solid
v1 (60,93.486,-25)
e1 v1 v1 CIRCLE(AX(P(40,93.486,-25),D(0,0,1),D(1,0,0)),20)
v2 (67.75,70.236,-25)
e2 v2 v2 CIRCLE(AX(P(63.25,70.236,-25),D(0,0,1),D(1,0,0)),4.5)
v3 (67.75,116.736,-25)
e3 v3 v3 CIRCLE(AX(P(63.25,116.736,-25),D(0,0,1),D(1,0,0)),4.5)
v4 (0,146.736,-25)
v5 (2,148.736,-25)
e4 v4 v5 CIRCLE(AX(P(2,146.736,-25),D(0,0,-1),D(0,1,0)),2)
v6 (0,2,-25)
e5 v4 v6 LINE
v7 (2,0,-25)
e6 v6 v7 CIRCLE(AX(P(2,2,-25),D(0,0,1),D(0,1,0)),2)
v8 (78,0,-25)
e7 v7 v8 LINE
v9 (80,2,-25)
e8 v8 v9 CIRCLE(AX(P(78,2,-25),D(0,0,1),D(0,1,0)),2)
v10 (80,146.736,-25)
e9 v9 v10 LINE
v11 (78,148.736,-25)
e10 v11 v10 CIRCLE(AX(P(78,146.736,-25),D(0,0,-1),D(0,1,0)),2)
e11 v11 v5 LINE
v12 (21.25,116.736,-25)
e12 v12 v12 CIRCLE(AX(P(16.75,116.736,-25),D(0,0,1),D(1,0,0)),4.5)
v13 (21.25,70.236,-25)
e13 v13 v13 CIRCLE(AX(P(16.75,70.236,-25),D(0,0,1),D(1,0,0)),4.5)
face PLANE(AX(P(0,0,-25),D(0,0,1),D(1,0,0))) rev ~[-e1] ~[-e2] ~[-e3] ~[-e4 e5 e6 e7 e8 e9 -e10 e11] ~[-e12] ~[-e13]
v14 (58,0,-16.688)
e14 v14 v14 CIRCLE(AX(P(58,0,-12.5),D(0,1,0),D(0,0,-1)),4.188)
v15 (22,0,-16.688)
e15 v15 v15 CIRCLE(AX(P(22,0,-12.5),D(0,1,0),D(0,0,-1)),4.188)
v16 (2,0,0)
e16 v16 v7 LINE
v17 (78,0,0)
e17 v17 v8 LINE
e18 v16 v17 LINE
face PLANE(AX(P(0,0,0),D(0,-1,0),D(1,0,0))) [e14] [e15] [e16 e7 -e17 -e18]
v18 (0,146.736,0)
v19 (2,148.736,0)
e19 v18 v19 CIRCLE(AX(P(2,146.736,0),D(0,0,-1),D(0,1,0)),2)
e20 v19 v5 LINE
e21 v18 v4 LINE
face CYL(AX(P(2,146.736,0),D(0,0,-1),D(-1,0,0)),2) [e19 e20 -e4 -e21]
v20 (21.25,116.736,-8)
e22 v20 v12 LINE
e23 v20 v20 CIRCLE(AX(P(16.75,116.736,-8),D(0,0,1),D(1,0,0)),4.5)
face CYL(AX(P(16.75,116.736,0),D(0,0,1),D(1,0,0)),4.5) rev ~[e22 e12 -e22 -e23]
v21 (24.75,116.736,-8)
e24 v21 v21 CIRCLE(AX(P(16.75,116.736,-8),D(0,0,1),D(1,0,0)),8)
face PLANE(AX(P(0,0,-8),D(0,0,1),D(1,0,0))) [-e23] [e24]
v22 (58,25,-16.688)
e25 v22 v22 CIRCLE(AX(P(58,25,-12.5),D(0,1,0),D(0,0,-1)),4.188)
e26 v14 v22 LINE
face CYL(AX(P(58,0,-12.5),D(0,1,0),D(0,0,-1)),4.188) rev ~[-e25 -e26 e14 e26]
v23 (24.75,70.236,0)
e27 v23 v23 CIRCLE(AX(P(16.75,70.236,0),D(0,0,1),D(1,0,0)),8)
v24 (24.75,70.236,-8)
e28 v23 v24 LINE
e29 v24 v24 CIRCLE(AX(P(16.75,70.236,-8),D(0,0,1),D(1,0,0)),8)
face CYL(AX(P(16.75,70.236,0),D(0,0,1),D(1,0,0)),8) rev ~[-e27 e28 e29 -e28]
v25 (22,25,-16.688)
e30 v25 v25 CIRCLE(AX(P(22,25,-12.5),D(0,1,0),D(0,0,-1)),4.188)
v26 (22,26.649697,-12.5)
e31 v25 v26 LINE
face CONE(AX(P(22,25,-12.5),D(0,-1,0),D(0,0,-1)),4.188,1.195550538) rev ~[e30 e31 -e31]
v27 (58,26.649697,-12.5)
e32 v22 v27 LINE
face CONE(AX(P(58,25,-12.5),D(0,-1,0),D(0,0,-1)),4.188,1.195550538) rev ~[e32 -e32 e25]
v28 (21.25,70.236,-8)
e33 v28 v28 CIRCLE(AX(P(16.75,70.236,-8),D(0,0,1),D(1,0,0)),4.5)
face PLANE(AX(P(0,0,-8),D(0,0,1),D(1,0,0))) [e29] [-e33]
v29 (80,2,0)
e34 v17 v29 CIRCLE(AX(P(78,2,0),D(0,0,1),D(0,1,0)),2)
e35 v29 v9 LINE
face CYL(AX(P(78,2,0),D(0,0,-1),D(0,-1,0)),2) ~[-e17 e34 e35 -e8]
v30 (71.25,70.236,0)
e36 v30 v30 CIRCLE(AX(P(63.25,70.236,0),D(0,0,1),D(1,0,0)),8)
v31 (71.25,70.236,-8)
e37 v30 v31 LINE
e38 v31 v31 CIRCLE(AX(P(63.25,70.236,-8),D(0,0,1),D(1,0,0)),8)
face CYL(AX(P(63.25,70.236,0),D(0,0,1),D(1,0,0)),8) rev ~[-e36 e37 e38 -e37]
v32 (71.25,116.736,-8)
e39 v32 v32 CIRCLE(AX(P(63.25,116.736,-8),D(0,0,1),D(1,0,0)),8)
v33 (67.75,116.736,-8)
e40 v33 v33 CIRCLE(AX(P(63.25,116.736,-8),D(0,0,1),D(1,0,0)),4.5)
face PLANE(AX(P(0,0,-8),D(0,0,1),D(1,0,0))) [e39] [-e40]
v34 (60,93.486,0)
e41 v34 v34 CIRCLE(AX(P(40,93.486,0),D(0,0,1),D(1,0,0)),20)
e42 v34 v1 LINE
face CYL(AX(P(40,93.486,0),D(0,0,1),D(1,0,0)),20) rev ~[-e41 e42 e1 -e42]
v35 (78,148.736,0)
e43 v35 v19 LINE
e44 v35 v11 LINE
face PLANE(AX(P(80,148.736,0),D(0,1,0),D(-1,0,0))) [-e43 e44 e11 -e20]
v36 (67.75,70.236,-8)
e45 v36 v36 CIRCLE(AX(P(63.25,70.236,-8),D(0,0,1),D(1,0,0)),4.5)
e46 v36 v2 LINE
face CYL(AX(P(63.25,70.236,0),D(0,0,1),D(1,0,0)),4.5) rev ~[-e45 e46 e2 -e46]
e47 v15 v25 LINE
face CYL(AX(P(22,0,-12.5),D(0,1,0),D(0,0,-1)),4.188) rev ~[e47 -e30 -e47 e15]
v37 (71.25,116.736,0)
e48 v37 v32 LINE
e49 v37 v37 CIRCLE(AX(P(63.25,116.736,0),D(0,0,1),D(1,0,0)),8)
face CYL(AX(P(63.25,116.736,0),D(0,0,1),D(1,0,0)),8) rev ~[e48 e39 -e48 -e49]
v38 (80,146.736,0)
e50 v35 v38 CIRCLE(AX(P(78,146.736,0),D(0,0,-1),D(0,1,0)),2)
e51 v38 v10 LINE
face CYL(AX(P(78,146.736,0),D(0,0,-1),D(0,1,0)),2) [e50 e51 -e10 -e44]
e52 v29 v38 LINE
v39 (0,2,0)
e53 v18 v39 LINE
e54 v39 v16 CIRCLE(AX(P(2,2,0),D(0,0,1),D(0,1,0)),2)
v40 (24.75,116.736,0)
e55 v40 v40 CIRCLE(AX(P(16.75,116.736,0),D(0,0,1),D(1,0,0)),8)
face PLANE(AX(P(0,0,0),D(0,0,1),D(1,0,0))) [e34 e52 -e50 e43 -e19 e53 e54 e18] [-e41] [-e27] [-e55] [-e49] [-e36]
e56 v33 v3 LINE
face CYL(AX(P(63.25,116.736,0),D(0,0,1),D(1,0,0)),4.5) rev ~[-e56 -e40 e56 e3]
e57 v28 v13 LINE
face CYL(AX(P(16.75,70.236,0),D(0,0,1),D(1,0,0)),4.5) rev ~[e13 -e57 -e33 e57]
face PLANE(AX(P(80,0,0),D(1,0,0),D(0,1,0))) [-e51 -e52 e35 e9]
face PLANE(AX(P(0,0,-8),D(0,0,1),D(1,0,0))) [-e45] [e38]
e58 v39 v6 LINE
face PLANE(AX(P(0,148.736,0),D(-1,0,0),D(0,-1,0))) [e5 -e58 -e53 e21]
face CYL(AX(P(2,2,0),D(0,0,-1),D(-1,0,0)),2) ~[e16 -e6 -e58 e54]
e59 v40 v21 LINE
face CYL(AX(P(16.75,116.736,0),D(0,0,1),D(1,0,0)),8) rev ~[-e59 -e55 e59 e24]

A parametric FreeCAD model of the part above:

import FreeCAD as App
import Part
import Sketcher
from FreeCAD import Vector


def edges_at(feature, points):
    """Names of the edges that pass closest to the given points."""
    edges = feature.Shape.Edges
    near = lambda p: min(range(len(edges)), key=lambda i: edges[i].distToShape(Part.Vertex(*p))[0])
    return sorted({f"Edge{near(p) + 1}" for p in points})


def add_polygon(sketch, points):
    """Adds a closed chain of lines whose ends are joined by coincident constraints."""
    first, n = sketch.GeometryCount, len(points)
    for a, b in zip(points, points[1:] + points[:1]):
        sketch.addGeometry(Part.LineSegment(App.Vector(*a, 0), App.Vector(*b, 0)), False)
    for i in range(n):
        sketch.addConstraint(Sketcher.Constraint("Coincident", first + i, 2, first + (i + 1) % n, 1))

doc = App.newDocument("Part")
body = doc.addObject("PartDesign::Body", "Body")

# Sketch on XY plane
sketch1 = body.newObject("Sketcher::SketchObject", "Sketch")
sketch1.AttachmentSupport = (doc.getObject("XY_Plane"), [""])
sketch1.MapMode = "FlatFace"
add_polygon(sketch1, [(0, 148.7), (0, 0), (80, 0), (80, 148.7)])  # lines 0-3
sketch1.addGeometry(Part.Circle(Vector(16.8, 70.2, 0), Vector(0, 0, 1), 4.5), False)  # 4
sketch1.addGeometry(Part.Circle(Vector(63.2, 70.2, 0), Vector(0, 0, 1), 4.5), False)  # 5
sketch1.addGeometry(Part.Circle(Vector(16.8, 116.7, 0), Vector(0, 0, 1), 4.5), False)  # 6
sketch1.addGeometry(Part.Circle(Vector(40, 93.5, 0), Vector(0, 0, 1), 20), False)  # 7
sketch1.addGeometry(Part.Circle(Vector(63.2, 116.7, 0), Vector(0, 0, 1), 4.5), False)  # 8
sketch1.addConstraint(Sketcher.Constraint("Vertical", 0))
sketch1.addConstraint(Sketcher.Constraint("Horizontal", 1))
sketch1.addConstraint(Sketcher.Constraint("Vertical", 2))
sketch1.addConstraint(Sketcher.Constraint("Horizontal", 3))
sketch1.addConstraint(Sketcher.Constraint("Coincident", 0, 2, -1, 1))
sketch1.addConstraint(Sketcher.Constraint("Equal", 4, 5))
sketch1.addConstraint(Sketcher.Constraint("Equal", 5, 6))
sketch1.addConstraint(Sketcher.Constraint("Equal", 6, 8))
sketch1.addConstraint(Sketcher.Constraint("Horizontal", 4, 3, 5, 3))
sketch1.addConstraint(Sketcher.Constraint("Horizontal", 6, 3, 8, 3))
sketch1.addConstraint(Sketcher.Constraint("Vertical", 4, 3, 6, 3))
sketch1.addConstraint(Sketcher.Constraint("Vertical", 5, 3, 8, 3))
sketch1.addConstraint(Sketcher.Constraint("Diameter", 4, 9.0))
sketch1.addConstraint(Sketcher.Constraint("Diameter", 7, 40.0))
sketch1.addConstraint(Sketcher.Constraint("DistanceX", 1, 1, 1, 2, 80.0))
sketch1.addConstraint(Sketcher.Constraint("DistanceX", -1, 1, 7, 3, 40.0))
sketch1.addConstraint(Sketcher.Constraint("DistanceY", 8, 3, 2, 2, 32.0))
sketch1.addConstraint(Sketcher.Constraint("DistanceX", 4, 3, 7, 3, 23.25))
sketch1.addConstraint(Sketcher.Constraint("DistanceY", 4, 3, 7, 3, 23.25))
sketch1.addConstraint(Sketcher.Constraint("DistanceX", 7, 3, 5, 3, 23.25))
sketch1.addConstraint(Sketcher.Constraint("DistanceY", 7, 3, 6, 3, 23.25))
sketch1.addConstraint(Sketcher.Constraint("DistanceY", -1, 1, 7, 3, 93.486))
pad1 = body.newObject("PartDesign::Pad", "Pad")
pad1.Profile = sketch1
pad1.Length = 25
pad1.Reversed = True

# Sketch on XY plane
sketch2 = body.newObject("Sketcher::SketchObject", "Sketch001")
sketch2.AttachmentSupport = (doc.getObject("XY_Plane"), [""])
sketch2.MapMode = "FlatFace"
sketch2.addGeometry(Part.Circle(Vector(17, 117, 0), Vector(0, 0, 1), 8), False)
sketch2.addGeometry(Part.Circle(Vector(63, 117, 0), Vector(0, 0, 1), 8), False)
sketch2.addGeometry(Part.Circle(Vector(17, 70, 0), Vector(0, 0, 1), 8), False)
sketch2.addGeometry(Part.Circle(Vector(63, 70, 0), Vector(0, 0, 1), 8), False)
sketch2.addConstraint(Sketcher.Constraint("Equal", 0, 1))
sketch2.addConstraint(Sketcher.Constraint("Equal", 1, 2))
sketch2.addConstraint(Sketcher.Constraint("Equal", 2, 3))
sketch2.addConstraint(Sketcher.Constraint("Horizontal", 0, 3, 1, 3))
sketch2.addConstraint(Sketcher.Constraint("Horizontal", 2, 3, 3, 3))
sketch2.addConstraint(Sketcher.Constraint("Vertical", 0, 3, 2, 3))
sketch2.addConstraint(Sketcher.Constraint("Vertical", 1, 3, 3, 3))
sketch2.addConstraint(Sketcher.Constraint("Diameter", 0, 16.0))
sketch2.addConstraint(Sketcher.Constraint("DistanceX", 0, 3, 1, 3, 46.5))
sketch2.addConstraint(Sketcher.Constraint("DistanceY", 2, 3, 0, 3, 46.5))
sketch2.addConstraint(Sketcher.Constraint("DistanceX", -1, 1, 0, 3, 16.75))
sketch2.addConstraint(Sketcher.Constraint("DistanceY", -1, 1, 0, 3, 116.736))
pocket1 = body.newObject("PartDesign::Pocket", "Pocket")
pocket1.Profile = sketch2
pocket1.Length = 8
doc.recompute()

fillet = body.newObject("PartDesign::Fillet", "Fillet")
fillet.Base = (pocket1, edges_at(pocket1, [
    (80, 148.736, -12.5),
    (0, 148.736, -12.5),
    (80, 0, -12.5),
    (0, 0, -12.5),
]))
fillet.Radius = 2

# Sketch on XZ plane
sketch3 = body.newObject("Sketcher::SketchObject", "Sketch002")
sketch3.AttachmentSupport = (doc.getObject("XZ_Plane"), [""])
sketch3.MapMode = "FlatFace"
sketch3.addGeometry(Part.Circle(Vector(58, -12.5, 0), Vector(0, 0, 1), 4.2), False)
sketch3.addGeometry(Part.Circle(Vector(22, -12.5, 0), Vector(0, 0, 1), 4.2), False)
sketch3.addConstraint(Sketcher.Constraint("Equal", 0, 1))
sketch3.addConstraint(Sketcher.Constraint("Horizontal", 0, 3, 1, 3))
sketch3.addConstraint(Sketcher.Constraint("Diameter", 0, 8.376))
sketch3.addConstraint(Sketcher.Constraint("DistanceX", -1, 1, 0, 3, 58.0))
sketch3.addConstraint(Sketcher.Constraint("DistanceX", -1, 1, 1, 3, 22.0))
sketch3.addConstraint(Sketcher.Constraint("DistanceY", 0, 3, -1, 1, 12.5))
doc.recompute()
hole = body.newObject("PartDesign::Hole", "Hole")
hole.Profile = sketch3
hole.ThreadType = "None"
hole.Diameter = 8.376
hole.DepthType = "Dimension"
hole.Depth = 25
hole.DrillPoint = "Angled"
hole.DrillPointAngle = 137

doc.recompute()
